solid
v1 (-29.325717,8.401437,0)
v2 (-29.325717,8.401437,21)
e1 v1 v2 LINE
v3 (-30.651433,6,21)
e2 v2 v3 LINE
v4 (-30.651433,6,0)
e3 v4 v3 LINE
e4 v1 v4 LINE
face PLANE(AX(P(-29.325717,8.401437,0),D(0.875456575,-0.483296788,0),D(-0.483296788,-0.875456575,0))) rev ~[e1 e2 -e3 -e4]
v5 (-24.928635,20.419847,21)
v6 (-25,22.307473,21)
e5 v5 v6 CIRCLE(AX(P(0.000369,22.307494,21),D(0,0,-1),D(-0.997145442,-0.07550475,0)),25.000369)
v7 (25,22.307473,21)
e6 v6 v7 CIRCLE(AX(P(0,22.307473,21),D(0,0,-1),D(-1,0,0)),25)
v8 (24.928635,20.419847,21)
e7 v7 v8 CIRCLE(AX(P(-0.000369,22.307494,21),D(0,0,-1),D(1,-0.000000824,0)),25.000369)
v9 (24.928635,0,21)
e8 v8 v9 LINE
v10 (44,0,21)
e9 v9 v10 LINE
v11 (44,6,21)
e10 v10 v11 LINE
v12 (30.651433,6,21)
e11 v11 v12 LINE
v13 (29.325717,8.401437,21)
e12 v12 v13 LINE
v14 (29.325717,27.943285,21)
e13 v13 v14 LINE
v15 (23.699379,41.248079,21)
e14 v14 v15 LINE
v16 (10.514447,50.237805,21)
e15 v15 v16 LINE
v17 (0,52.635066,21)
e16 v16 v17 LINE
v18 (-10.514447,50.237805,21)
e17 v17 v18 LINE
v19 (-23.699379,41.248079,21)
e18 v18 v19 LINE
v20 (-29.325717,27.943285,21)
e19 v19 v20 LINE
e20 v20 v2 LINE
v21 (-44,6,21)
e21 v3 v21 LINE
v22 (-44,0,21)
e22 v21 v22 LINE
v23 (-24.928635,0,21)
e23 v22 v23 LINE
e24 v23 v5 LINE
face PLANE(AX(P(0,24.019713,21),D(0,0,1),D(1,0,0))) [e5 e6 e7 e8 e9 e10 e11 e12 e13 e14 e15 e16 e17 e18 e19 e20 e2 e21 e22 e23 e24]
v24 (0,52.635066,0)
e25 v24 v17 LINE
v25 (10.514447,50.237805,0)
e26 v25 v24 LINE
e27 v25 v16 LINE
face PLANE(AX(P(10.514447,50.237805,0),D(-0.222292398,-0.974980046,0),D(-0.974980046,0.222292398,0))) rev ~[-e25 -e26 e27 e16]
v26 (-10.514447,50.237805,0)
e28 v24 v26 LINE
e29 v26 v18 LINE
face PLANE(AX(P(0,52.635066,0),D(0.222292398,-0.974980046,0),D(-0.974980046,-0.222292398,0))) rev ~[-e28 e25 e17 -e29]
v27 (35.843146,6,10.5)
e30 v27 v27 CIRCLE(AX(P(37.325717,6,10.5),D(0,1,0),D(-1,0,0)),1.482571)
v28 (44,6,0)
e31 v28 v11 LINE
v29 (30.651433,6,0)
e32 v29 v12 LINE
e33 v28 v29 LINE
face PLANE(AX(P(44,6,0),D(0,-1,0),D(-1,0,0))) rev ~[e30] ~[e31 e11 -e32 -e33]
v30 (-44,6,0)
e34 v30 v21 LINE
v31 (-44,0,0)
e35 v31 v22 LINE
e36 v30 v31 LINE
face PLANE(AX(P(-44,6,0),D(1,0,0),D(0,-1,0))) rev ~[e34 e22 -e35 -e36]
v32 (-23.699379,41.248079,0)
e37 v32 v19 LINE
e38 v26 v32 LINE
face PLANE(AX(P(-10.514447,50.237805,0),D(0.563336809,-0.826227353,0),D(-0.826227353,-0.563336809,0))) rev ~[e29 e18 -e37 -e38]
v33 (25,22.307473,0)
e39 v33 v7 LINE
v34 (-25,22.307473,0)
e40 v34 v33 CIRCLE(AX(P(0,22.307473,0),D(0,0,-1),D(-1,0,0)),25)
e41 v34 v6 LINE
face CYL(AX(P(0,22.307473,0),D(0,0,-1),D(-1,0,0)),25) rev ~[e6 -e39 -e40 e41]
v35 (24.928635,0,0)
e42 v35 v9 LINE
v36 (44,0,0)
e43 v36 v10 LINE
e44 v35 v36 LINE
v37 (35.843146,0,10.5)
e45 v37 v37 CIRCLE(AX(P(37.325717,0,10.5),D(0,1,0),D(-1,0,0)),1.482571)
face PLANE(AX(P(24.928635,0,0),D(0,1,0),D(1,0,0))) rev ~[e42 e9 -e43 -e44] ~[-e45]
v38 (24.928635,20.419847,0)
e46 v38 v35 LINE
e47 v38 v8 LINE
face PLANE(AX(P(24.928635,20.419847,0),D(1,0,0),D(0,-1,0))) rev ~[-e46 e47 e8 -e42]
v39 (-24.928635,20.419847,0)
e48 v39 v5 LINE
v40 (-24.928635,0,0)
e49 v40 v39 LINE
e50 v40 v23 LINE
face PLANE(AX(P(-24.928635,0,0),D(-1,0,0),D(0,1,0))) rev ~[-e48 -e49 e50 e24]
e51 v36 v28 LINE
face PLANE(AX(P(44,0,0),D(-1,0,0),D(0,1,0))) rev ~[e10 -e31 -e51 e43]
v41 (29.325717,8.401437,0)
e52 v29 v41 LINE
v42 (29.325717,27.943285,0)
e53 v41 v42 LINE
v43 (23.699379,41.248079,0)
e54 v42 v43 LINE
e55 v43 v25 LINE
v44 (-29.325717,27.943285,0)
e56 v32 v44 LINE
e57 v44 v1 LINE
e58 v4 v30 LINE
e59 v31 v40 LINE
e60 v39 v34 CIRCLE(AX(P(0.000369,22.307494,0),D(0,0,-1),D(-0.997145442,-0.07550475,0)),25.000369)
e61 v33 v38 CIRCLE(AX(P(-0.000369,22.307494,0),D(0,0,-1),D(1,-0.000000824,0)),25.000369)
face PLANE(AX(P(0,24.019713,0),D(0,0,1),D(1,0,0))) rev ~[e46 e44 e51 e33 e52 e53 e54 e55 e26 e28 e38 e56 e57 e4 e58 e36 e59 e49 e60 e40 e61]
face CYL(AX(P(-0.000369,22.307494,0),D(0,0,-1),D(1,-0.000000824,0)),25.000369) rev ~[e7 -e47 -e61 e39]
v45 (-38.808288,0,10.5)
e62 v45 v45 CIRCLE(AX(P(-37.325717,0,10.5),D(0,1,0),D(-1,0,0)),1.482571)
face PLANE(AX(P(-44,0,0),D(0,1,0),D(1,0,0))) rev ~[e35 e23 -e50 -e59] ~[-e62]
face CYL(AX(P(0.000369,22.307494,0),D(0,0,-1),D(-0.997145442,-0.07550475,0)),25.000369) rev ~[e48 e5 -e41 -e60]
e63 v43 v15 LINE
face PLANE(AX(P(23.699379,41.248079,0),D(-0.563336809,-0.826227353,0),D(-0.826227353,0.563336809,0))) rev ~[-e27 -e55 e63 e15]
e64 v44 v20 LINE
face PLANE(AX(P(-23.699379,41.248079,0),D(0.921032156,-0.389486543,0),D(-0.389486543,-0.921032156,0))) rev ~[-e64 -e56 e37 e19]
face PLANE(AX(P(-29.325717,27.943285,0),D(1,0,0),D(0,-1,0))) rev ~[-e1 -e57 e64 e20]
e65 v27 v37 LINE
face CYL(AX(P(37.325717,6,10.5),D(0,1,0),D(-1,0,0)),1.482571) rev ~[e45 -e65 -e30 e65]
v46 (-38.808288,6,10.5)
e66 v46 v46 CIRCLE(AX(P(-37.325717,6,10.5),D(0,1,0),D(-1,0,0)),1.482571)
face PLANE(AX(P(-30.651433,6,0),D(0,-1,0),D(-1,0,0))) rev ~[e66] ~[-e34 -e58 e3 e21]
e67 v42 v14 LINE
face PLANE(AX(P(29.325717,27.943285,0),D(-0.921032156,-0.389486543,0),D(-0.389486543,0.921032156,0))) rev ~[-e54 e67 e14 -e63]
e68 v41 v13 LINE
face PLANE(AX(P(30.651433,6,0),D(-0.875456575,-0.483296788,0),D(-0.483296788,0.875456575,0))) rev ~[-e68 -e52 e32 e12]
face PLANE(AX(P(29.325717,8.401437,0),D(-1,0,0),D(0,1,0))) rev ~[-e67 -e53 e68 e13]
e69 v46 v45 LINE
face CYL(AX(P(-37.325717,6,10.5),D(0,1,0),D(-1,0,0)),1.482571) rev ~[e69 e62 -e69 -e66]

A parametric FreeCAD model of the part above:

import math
import FreeCAD as App
import Part
import Sketcher
from FreeCAD import Vector
Q = App.Units.Quantity

doc = App.newDocument("Part")
body = doc.addObject("PartDesign::Body", "Body")

# Sketch on XY plane
sketch1 = body.newObject("Sketcher::SketchObject", "Sketch")
sketch1.AttachmentSupport = (doc.getObject("XY_Plane"), [""])
sketch1.MapMode = "FlatFace"
sketch1.addGeometry(Part.ArcOfCircle(Part.Circle(Vector(-0.000369, 22.307494, 0), Vector(0, 0, 1), 25.000369), math.radians(-4.330225), math.radians(-0.000047)), False)
sketch1.addGeometry(Part.LineSegment(Vector(24.928635, 20.419847, 0), Vector(24.928635, 0, 0)), False)
sketch1.addGeometry(Part.LineSegment(Vector(24.928635, 0, 0), Vector(44, 0, 0)), False)
sketch1.addGeometry(Part.LineSegment(Vector(44, 0, 0), Vector(44, 6, 0)), False)
sketch1.addGeometry(Part.LineSegment(Vector(44, 6, 0), Vector(30.651433, 6, 0)), False)
sketch1.addGeometry(Part.LineSegment(Vector(30.651433, 6, 0), Vector(29.325717, 8.401437, 0)), False)
sketch1.addGeometry(Part.LineSegment(Vector(29.325717, 8.401437, 0), Vector(29.325717, 27.943285, 0)), False)
sketch1.addGeometry(Part.LineSegment(Vector(29.325717, 27.943285, 0), Vector(23.699379, 41.248079, 0)), False)
sketch1.addGeometry(Part.LineSegment(Vector(23.699379, 41.248079, 0), Vector(10.514447, 50.237805, 0)), False)
sketch1.addGeometry(Part.LineSegment(Vector(10.514447, 50.237805, 0), Vector(0, 52.635066, 0)), False)
sketch1.addGeometry(Part.LineSegment(Vector(0, 52.635066, 0), Vector(-10.514447, 50.237805, 0)), False)
sketch1.addGeometry(Part.LineSegment(Vector(-10.514447, 50.237805, 0), Vector(-23.699379, 41.248079, 0)), False)
sketch1.addGeometry(Part.LineSegment(Vector(-23.699379, 41.248079, 0), Vector(-29.325717, 27.943285, 0)), False)
sketch1.addGeometry(Part.LineSegment(Vector(-29.325717, 27.943285, 0), Vector(-29.325717, 8.401437, 0)), False)
sketch1.addGeometry(Part.LineSegment(Vector(-29.325717, 8.401437, 0), Vector(-30.651433, 6, 0)), False)
sketch1.addGeometry(Part.LineSegment(Vector(-30.651433, 6, 0), Vector(-44, 6, 0)), False)
sketch1.addGeometry(Part.LineSegment(Vector(-44, 6, 0), Vector(-44, 0, 0)), False)
sketch1.addGeometry(Part.LineSegment(Vector(-44, 0, 0), Vector(-24.928635, 0, 0)), False)
sketch1.addGeometry(Part.LineSegment(Vector(-24.928635, 0, 0), Vector(-24.928635, 20.419847, 0)), False)
sketch1.addGeometry(Part.ArcOfCircle(Part.Circle(Vector(0.000369, 22.307494, 0), Vector(0, 0, 1), 25.000369), math.radians(-179.999953), math.radians(-175.669775)), False)
sketch1.addGeometry(Part.ArcOfCircle(Part.Circle(Vector(0, 22.307473, 0), Vector(0, 0, 1), 25), math.radians(0), math.radians(180)), False)
sketch1.addConstraint(Sketcher.Constraint("Coincident", 0, 1, 1, 1))
sketch1.addConstraint(Sketcher.Constraint("Coincident", 1, 2, 2, 1))
sketch1.addConstraint(Sketcher.Constraint("Coincident", 2, 2, 3, 1))
sketch1.addConstraint(Sketcher.Constraint("Coincident", 3, 2, 4, 1))
sketch1.addConstraint(Sketcher.Constraint("Coincident", 4, 2, 5, 1))
sketch1.addConstraint(Sketcher.Constraint("Coincident", 5, 2, 6, 1))
sketch1.addConstraint(Sketcher.Constraint("Coincident", 6, 2, 7, 1))
sketch1.addConstraint(Sketcher.Constraint("Coincident", 7, 2, 8, 1))
sketch1.addConstraint(Sketcher.Constraint("Coincident", 8, 2, 9, 1))
sketch1.addConstraint(Sketcher.Constraint("Coincident", 9, 2, 10, 1))
sketch1.addConstraint(Sketcher.Constraint("Coincident", 10, 2, 11, 1))
sketch1.addConstraint(Sketcher.Constraint("Coincident", 11, 2, 12, 1))
sketch1.addConstraint(Sketcher.Constraint("Coincident", 12, 2, 13, 1))
sketch1.addConstraint(Sketcher.Constraint("Coincident", 13, 2, 14, 1))
sketch1.addConstraint(Sketcher.Constraint("Coincident", 14, 2, 15, 1))
sketch1.addConstraint(Sketcher.Constraint("Coincident", 15, 2, 16, 1))
sketch1.addConstraint(Sketcher.Constraint("Coincident", 16, 2, 17, 1))
sketch1.addConstraint(Sketcher.Constraint("Coincident", 17, 2, 18, 1))
sketch1.addConstraint(Sketcher.Constraint("Coincident", 18, 2, 19, 2))
sketch1.addConstraint(Sketcher.Constraint("Coincident", 19, 1, 20, 2))
sketch1.addConstraint(Sketcher.Constraint("Coincident", 20, 1, 0, 2))
sketch1.addConstraint(Sketcher.Constraint("Vertical", 1))
sketch1.addConstraint(Sketcher.Constraint("Horizontal", 2))
sketch1.addConstraint(Sketcher.Constraint("Vertical", 3))
sketch1.addConstraint(Sketcher.Constraint("Horizontal", 4))
sketch1.addConstraint(Sketcher.Constraint("Vertical", 6))
sketch1.addConstraint(Sketcher.Constraint("Vertical", 13))
sketch1.addConstraint(Sketcher.Constraint("Horizontal", 15))
sketch1.addConstraint(Sketcher.Constraint("Vertical", 16))
sketch1.addConstraint(Sketcher.Constraint("Horizontal", 17))
sketch1.addConstraint(Sketcher.Constraint("Vertical", 18))
sketch1.addConstraint(Sketcher.Constraint("PointOnObject", 20, 3, -2))
sketch1.addConstraint(Sketcher.Constraint("PointOnObject", 1, 2, -1))
sketch1.addConstraint(Sketcher.Constraint("PointOnObject", 9, 2, -2))
sketch1.addConstraint(Sketcher.Constraint("PointOnObject", 16, 2, -1))
sketch1.addConstraint(Sketcher.Constraint("Radius", 20, Q("25 mm")))
sketch1.addConstraint(Sketcher.Constraint("DistanceY", 3, 1, 3, 2, Q("6 mm")))
sketch1.addConstraint(Sketcher.Constraint("DistanceY", 16, 2, 16, 1, Q("6 mm")))
sketch1.addConstraint(Sketcher.Constraint("DistanceX", -1, 1, 2, 2, Q("44 mm")))
sketch1.addConstraint(Sketcher.Constraint("DistanceX", 15, 2, -1, 1, Q("44 mm")))
sketch1.addConstraint(Sketcher.Constraint("Radius", 0, Q("25.000369 mm")))
sketch1.addConstraint(Sketcher.Constraint("Radius", 19, Q("25.000369 mm")))
sketch1.addConstraint(Sketcher.Constraint("DistanceY", 6, 1, 6, 2, Q("19.541848 mm")))
sketch1.addConstraint(Sketcher.Constraint("DistanceY", 13, 2, 13, 1, Q("19.541848 mm")))
sketch1.addConstraint(Sketcher.Constraint("DistanceX", 1, 2, 4, 2, Q("5.722798 mm")))
sketch1.addConstraint(Sketcher.Constraint("DistanceX", 14, 2, 17, 2, Q("5.722798 mm")))
sketch1.addConstraint(Sketcher.Constraint("Distance", 5, Q("2.743068 mm")))
sketch1.addConstraint(Sketcher.Constraint("Distance", 9, Q("10.784269 mm")))
sketch1.addConstraint(Sketcher.Constraint("Distance", 10, Q("10.784269 mm")))
sketch1.addConstraint(Sketcher.Constraint("Distance", 14, Q("2.743068 mm")))
sketch1.addConstraint(Sketcher.Constraint("DistanceX", 2, 1, 2, 2, Q("19.071365 mm")))
sketch1.addConstraint(Sketcher.Constraint("DistanceX", 15, 2, 15, 1, Q("13.348567 mm")))
sketch1.addConstraint(Sketcher.Constraint("DistanceY", 1, 2, 1, 1, Q("20.419847 mm")))
sketch1.addConstraint(Sketcher.Constraint("DistanceY", 18, 1, 18, 2, Q("20.419847 mm")))
sketch1.addConstraint(Sketcher.Constraint("DistanceX", -1, 1, 7, 2, Q("23.699379 mm")))
sketch1.addConstraint(Sketcher.Constraint("DistanceY", -1, 1, 7, 2, Q("41.248079 mm")))
sketch1.addConstraint(Sketcher.Constraint("DistanceX", 11, 2, -1, 1, Q("23.699379 mm")))
sketch1.addConstraint(Sketcher.Constraint("DistanceY", -1, 1, 11, 2, Q("41.248079 mm")))
sketch1.addConstraint(Sketcher.Constraint("DistanceY", 5, 2, 0, 1, Q("12.01841 mm")))
sketch1.addConstraint(Sketcher.Constraint("DistanceX", 8, 2, 6, 2, Q("18.81127 mm")))
sketch1.addConstraint(Sketcher.Constraint("DistanceY", 6, 2, 8, 2, Q("22.29452 mm")))
sketch1.addConstraint(Sketcher.Constraint("DistanceY", 20, 3, 8, 2, Q("27.930332 mm")))
sketch1.addConstraint(Sketcher.Constraint("DistanceY", 10, 2, 9, 2, Q("2.397261 mm")))
sketch1.addConstraint(Sketcher.Constraint("DistanceX", 12, 2, 11, 2, Q("5.626338 mm")))
sketch1.addConstraint(Sketcher.Constraint("DistanceY", 19, 1, 12, 2, Q("5.635812 mm")))
sketch1.addConstraint(Sketcher.Constraint("DistanceY", 20, 1, 6, 2, Q("5.635812 mm")))
pad1 = body.newObject("PartDesign::Pad", "Pad")
pad1.Profile = sketch1
pad1.Length = 21

# Sketch on XZ plane
sketch2 = body.newObject("Sketcher::SketchObject", "Sketch001")
sketch2.AttachmentSupport = (doc.getObject("XZ_Plane"), [""])
sketch2.MapMode = "FlatFace"
sketch2.AttachmentOffset = App.Placement(Vector(0, 0, -6), App.Rotation())
sketch2.addGeometry(Part.Circle(Vector(37.3, 10.5, 0), Vector(0, 0, 1), 1.5), False)
sketch2.addGeometry(Part.Circle(Vector(-37.3, 10.5, 0), Vector(0, 0, 1), 1.5), False)
sketch2.addConstraint(Sketcher.Constraint("Equal", 0, 1))
sketch2.addConstraint(Sketcher.Constraint("Symmetric", 0, 3, 1, 3, -2))
sketch2.addConstraint(Sketcher.Constraint("DistanceY", -1, 1, 0, 3, Q("10.5 mm")))
sketch2.addConstraint(Sketcher.Constraint("Diameter", 0, Q("2.965142 mm")))
sketch2.addConstraint(Sketcher.Constraint("DistanceX", -1, 1, 0, 3, Q("37.325717 mm")))
pocket1 = body.newObject("PartDesign::Pocket", "Pocket")
pocket1.Profile = sketch2
pocket1.Type = "ThroughAll"
pocket1.Reversed = True

doc.recompute()
